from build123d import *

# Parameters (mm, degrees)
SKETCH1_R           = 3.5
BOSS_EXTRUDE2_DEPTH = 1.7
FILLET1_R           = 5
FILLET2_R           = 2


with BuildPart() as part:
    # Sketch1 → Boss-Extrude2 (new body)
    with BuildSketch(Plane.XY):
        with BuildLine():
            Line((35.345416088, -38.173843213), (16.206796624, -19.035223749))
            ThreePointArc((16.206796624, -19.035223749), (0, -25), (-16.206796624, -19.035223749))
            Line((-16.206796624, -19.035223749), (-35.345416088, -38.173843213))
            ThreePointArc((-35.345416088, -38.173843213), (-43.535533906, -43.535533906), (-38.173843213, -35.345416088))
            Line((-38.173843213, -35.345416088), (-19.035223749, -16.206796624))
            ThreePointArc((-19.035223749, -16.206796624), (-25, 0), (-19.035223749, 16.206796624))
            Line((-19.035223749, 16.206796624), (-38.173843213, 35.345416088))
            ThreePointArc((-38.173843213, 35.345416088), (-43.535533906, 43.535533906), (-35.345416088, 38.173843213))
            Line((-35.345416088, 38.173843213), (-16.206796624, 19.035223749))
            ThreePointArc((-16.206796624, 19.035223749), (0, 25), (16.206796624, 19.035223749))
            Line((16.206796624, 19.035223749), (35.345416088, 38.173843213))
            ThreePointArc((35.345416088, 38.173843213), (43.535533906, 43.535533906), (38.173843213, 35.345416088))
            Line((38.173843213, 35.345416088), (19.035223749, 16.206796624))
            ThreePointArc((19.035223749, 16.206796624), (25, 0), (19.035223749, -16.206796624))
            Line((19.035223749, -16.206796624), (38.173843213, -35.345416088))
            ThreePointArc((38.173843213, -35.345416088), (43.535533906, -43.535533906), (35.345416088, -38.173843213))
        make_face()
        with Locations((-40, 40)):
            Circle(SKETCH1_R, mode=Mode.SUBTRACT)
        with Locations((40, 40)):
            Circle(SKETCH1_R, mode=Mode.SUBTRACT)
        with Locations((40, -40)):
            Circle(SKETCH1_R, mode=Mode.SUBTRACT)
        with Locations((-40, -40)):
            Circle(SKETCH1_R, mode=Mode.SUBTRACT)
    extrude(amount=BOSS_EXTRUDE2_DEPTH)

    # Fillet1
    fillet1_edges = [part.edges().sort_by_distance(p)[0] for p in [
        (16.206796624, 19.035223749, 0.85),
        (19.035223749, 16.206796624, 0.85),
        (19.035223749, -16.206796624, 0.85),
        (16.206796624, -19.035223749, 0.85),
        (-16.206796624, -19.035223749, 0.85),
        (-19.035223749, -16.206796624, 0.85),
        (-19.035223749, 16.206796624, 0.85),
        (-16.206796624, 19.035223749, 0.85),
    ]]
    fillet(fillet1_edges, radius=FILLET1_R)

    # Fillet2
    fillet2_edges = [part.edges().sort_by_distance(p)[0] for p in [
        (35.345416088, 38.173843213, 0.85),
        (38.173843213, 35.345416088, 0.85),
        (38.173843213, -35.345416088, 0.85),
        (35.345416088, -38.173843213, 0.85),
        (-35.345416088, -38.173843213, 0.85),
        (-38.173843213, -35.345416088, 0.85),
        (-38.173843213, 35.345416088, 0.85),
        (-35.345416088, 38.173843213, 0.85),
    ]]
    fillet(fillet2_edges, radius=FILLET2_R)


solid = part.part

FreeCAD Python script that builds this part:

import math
import FreeCAD as App
import Part
import Sketcher

V = App.Vector


def edges_at(feature, points):
    """Names of the edges that pass closest to the given points."""
    edges = feature.Shape.Edges
    near = lambda p: min(range(len(edges)), key=lambda i: edges[i].distToShape(Part.Vertex(*p))[0])
    return sorted({f"Edge{near(p) + 1}" for p in points})

doc = App.newDocument("Part")
body = doc.addObject("PartDesign::Body", "Body")

# Sketch on XY plane
sketch1 = body.newObject("Sketcher::SketchObject", "Sketch")
sketch1.AttachmentSupport = (doc.getObject("XY_Plane"), [""])
sketch1.MapMode = "FlatFace"
sketch1.addGeometry(Part.LineSegment(V(16.206797, -19.035224, 0), V(35.345416, -38.173843, 0)), False)
sketch1.addGeometry(Part.ArcOfCircle(Part.Circle(V(40, -40, 0), V(0, 0, 1), 5), math.radians(158.578178), math.radians(471.421822)), False)
sketch1.addGeometry(Part.LineSegment(V(38.173843, -35.345416, 0), V(19.035224, -16.206797, 0)), False)
sketch1.addGeometry(Part.ArcOfCircle(Part.Circle(V(0, 0, 0), V(0, 0, 1), 25), math.radians(-40.411434), math.radians(40.411434)), False)
sketch1.addGeometry(Part.LineSegment(V(19.035224, 16.206797, 0), V(38.173843, 35.345416, 0)), False)
sketch1.addGeometry(Part.ArcOfCircle(Part.Circle(V(40, 40, 0), V(0, 0, 1), 5), math.radians(-111.421822), math.radians(201.421822)), False)
sketch1.addGeometry(Part.LineSegment(V(35.345416, 38.173843, 0), V(16.206797, 19.035224, 0)), False)
sketch1.addGeometry(Part.ArcOfCircle(Part.Circle(V(0, 0, 0), V(0, 0, 1), 25), math.radians(49.588566), math.radians(130.411434)), False)
sketch1.addGeometry(Part.LineSegment(V(-16.206797, 19.035224, 0), V(-35.345416, 38.173843, 0)), False)
sketch1.addGeometry(Part.ArcOfCircle(Part.Circle(V(-40, 40, 0), V(0, 0, 1), 5), math.radians(-21.421822), math.radians(291.421822)), False)
sketch1.addGeometry(Part.LineSegment(V(-38.173843, 35.345416, 0), V(-19.035224, 16.206797, 0)), False)
sketch1.addGeometry(Part.ArcOfCircle(Part.Circle(V(0, 0, 0), V(0, 0, 1), 25), math.radians(139.588566), math.radians(220.411434)), False)
sketch1.addGeometry(Part.LineSegment(V(-19.035224, -16.206797, 0), V(-38.173843, -35.345416, 0)), False)
sketch1.addGeometry(Part.ArcOfCircle(Part.Circle(V(-40, -40, 0), V(0, 0, 1), 5), math.radians(68.578178), math.radians(381.421822)), False)
sketch1.addGeometry(Part.LineSegment(V(-35.345416, -38.173843, 0), V(-16.206797, -19.035224, 0)), False)
sketch1.addGeometry(Part.ArcOfCircle(Part.Circle(V(0, 0, 0), V(0, 0, 1), 25), math.radians(-130.411434), math.radians(-49.588566)), False)
sketch1.addGeometry(Part.Circle(V(40, -40, 0), V(0, 0, 1), 3.5), False)
sketch1.addGeometry(Part.Circle(V(-40, -40, 0), V(0, 0, 1), 3.5), False)
sketch1.addGeometry(Part.Circle(V(40, 40, 0), V(0, 0, 1), 3.5), False)
sketch1.addGeometry(Part.Circle(V(-40, 40, 0), V(0, 0, 1), 3.5), False)
sketch1.addConstraint(Sketcher.Constraint("Coincident", 0, 2, 1, 1))
sketch1.addConstraint(Sketcher.Constraint("Coincident", 1, 2, 2, 1))
sketch1.addConstraint(Sketcher.Constraint("Coincident", 2, 2, 3, 1))
sketch1.addConstraint(Sketcher.Constraint("Coincident", 3, 2, 4, 1))
sketch1.addConstraint(Sketcher.Constraint("Coincident", 4, 2, 5, 1))
sketch1.addConstraint(Sketcher.Constraint("Coincident", 5, 2, 6, 1))
sketch1.addConstraint(Sketcher.Constraint("Coincident", 6, 2, 7, 1))
sketch1.addConstraint(Sketcher.Constraint("Coincident", 7, 2, 8, 1))
sketch1.addConstraint(Sketcher.Constraint("Coincident", 8, 2, 9, 1))
sketch1.addConstraint(Sketcher.Constraint("Coincident", 9, 2, 10, 1))
sketch1.addConstraint(Sketcher.Constraint("Coincident", 10, 2, 11, 1))
sketch1.addConstraint(Sketcher.Constraint("Coincident", 11, 2, 12, 1))
sketch1.addConstraint(Sketcher.Constraint("Coincident", 12, 2, 13, 1))
sketch1.addConstraint(Sketcher.Constraint("Coincident", 13, 2, 14, 1))
sketch1.addConstraint(Sketcher.Constraint("Coincident", 14, 2, 15, 1))
sketch1.addConstraint(Sketcher.Constraint("Coincident", 15, 2, 0, 1))
sketch1.addConstraint(Sketcher.Constraint("Coincident", 3, 3, -1, 1))
sketch1.addConstraint(Sketcher.Constraint("Coincident", 7, 3, -1, 1))
sketch1.addConstraint(Sketcher.Constraint("Coincident", 11, 3, -1, 1))
sketch1.addConstraint(Sketcher.Constraint("Coincident", 15, 3, -1, 1))
sketch1.addConstraint(Sketcher.Constraint("Coincident", 16, 3, 1, 3))
sketch1.addConstraint(Sketcher.Constraint("Coincident", 17, 3, 13, 3))
sketch1.addConstraint(Sketcher.Constraint("Coincident", 18, 3, 5, 3))
sketch1.addConstraint(Sketcher.Constraint("Coincident", 19, 3, 9, 3))
sketch1.addConstraint(Sketcher.Constraint("Equal", 1, 5))
sketch1.addConstraint(Sketcher.Constraint("Equal", 3, 7))
sketch1.addConstraint(Sketcher.Constraint("Equal", 5, 9))
sketch1.addConstraint(Sketcher.Constraint("Equal", 7, 11))
sketch1.addConstraint(Sketcher.Constraint("Equal", 9, 13))
sketch1.addConstraint(Sketcher.Constraint("Equal", 11, 15))
sketch1.addConstraint(Sketcher.Constraint("Equal", 16, 17))
sketch1.addConstraint(Sketcher.Constraint("Equal", 17, 18))
sketch1.addConstraint(Sketcher.Constraint("Equal", 18, 19))
sketch1.addConstraint(Sketcher.Constraint("Symmetric", 1, 3, 9, 3, -1, 1))
sketch1.addConstraint(Sketcher.Constraint("Symmetric", 5, 3, 13, 3, -1, 1))
sketch1.addConstraint(Sketcher.Constraint("Symmetric", 5, 3, 9, 3, -2))
sketch1.addConstraint(Sketcher.Constraint("Parallel", 0, 2))
sketch1.addConstraint(Sketcher.Constraint("Perpendicular", 2, 4))
sketch1.addConstraint(Sketcher.Constraint("Parallel", 4, 6))
sketch1.addConstraint(Sketcher.Constraint("Perpendicular", 6, 8))
sketch1.addConstraint(Sketcher.Constraint("Parallel", 8, 10))
sketch1.addConstraint(Sketcher.Constraint("Perpendicular", 10, 12))
sketch1.addConstraint(Sketcher.Constraint("Parallel", 12, 14))
sketch1.addConstraint(Sketcher.Constraint("Horizontal", 6, 2, 7, 2))
sketch1.addConstraint(Sketcher.Constraint("Horizontal", 5, 2, 8, 2))
sketch1.addConstraint(Sketcher.Constraint("Horizontal", 4, 2, 9, 2))
sketch1.addConstraint(Sketcher.Constraint("Horizontal", 2, 2, 11, 2))
sketch1.addConstraint(Sketcher.Constraint("Horizontal", 0, 2, 13, 2))
sketch1.addConstraint(Sketcher.Constraint("Vertical", 2, 2, 3, 2))
sketch1.addConstraint(Sketcher.Constraint("Vertical", 0, 2, 5, 2))
sketch1.addConstraint(Sketcher.Constraint("Equal", 0, 2))
sketch1.addConstraint(Sketcher.Constraint("Diameter", 16, 7.0))
sketch1.addConstraint(Sketcher.Constraint("Radius", 1, 5.0))
sketch1.addConstraint(Sketcher.Constraint("Radius", 3, 25.0))
sketch1.addConstraint(Sketcher.Constraint("DistanceX", -1, 1, 1, 3, 40.0))
sketch1.addConstraint(Sketcher.Constraint("DistanceY", 1, 3, -1, 1, 40.0))
sketch1.addConstraint(Sketcher.Constraint("DistanceX", 2, 2, 1, 2, 19.138619))
pad1 = body.newObject("PartDesign::Pad", "Pad")
pad1.Profile = sketch1
pad1.Length = 1.7
doc.recompute()

fillet = body.newObject("PartDesign::Fillet", "Fillet")
fillet.Base = (pad1, edges_at(pad1, [
    (16.207, 19.035, 0.85),
    (19.035, 16.207, 0.85),
    (19.035, -16.207, 0.85),
    (16.207, -19.035, 0.85),
    (-16.207, -19.035, 0.85),
    (-19.035, -16.207, 0.85),
    (-19.035, 16.207, 0.85),
    (-16.207, 19.035, 0.85),
]))
fillet.Radius = 5
doc.recompute()

fillet2 = body.newObject("PartDesign::Fillet", "Fillet001")
fillet2.Base = (fillet, edges_at(fillet, [
    (35.345, 38.174, 0.85),
    (38.174, 35.345, 0.85),
    (38.174, -35.345, 0.85),
    (35.345, -38.174, 0.85),
    (-35.345, -38.174, 0.85),
    (-38.174, -35.345, 0.85),
    (-38.174, 35.345, 0.85),
    (-35.345, 38.174, 0.85),
]))
fillet2.Radius = 2

doc.recompute()
